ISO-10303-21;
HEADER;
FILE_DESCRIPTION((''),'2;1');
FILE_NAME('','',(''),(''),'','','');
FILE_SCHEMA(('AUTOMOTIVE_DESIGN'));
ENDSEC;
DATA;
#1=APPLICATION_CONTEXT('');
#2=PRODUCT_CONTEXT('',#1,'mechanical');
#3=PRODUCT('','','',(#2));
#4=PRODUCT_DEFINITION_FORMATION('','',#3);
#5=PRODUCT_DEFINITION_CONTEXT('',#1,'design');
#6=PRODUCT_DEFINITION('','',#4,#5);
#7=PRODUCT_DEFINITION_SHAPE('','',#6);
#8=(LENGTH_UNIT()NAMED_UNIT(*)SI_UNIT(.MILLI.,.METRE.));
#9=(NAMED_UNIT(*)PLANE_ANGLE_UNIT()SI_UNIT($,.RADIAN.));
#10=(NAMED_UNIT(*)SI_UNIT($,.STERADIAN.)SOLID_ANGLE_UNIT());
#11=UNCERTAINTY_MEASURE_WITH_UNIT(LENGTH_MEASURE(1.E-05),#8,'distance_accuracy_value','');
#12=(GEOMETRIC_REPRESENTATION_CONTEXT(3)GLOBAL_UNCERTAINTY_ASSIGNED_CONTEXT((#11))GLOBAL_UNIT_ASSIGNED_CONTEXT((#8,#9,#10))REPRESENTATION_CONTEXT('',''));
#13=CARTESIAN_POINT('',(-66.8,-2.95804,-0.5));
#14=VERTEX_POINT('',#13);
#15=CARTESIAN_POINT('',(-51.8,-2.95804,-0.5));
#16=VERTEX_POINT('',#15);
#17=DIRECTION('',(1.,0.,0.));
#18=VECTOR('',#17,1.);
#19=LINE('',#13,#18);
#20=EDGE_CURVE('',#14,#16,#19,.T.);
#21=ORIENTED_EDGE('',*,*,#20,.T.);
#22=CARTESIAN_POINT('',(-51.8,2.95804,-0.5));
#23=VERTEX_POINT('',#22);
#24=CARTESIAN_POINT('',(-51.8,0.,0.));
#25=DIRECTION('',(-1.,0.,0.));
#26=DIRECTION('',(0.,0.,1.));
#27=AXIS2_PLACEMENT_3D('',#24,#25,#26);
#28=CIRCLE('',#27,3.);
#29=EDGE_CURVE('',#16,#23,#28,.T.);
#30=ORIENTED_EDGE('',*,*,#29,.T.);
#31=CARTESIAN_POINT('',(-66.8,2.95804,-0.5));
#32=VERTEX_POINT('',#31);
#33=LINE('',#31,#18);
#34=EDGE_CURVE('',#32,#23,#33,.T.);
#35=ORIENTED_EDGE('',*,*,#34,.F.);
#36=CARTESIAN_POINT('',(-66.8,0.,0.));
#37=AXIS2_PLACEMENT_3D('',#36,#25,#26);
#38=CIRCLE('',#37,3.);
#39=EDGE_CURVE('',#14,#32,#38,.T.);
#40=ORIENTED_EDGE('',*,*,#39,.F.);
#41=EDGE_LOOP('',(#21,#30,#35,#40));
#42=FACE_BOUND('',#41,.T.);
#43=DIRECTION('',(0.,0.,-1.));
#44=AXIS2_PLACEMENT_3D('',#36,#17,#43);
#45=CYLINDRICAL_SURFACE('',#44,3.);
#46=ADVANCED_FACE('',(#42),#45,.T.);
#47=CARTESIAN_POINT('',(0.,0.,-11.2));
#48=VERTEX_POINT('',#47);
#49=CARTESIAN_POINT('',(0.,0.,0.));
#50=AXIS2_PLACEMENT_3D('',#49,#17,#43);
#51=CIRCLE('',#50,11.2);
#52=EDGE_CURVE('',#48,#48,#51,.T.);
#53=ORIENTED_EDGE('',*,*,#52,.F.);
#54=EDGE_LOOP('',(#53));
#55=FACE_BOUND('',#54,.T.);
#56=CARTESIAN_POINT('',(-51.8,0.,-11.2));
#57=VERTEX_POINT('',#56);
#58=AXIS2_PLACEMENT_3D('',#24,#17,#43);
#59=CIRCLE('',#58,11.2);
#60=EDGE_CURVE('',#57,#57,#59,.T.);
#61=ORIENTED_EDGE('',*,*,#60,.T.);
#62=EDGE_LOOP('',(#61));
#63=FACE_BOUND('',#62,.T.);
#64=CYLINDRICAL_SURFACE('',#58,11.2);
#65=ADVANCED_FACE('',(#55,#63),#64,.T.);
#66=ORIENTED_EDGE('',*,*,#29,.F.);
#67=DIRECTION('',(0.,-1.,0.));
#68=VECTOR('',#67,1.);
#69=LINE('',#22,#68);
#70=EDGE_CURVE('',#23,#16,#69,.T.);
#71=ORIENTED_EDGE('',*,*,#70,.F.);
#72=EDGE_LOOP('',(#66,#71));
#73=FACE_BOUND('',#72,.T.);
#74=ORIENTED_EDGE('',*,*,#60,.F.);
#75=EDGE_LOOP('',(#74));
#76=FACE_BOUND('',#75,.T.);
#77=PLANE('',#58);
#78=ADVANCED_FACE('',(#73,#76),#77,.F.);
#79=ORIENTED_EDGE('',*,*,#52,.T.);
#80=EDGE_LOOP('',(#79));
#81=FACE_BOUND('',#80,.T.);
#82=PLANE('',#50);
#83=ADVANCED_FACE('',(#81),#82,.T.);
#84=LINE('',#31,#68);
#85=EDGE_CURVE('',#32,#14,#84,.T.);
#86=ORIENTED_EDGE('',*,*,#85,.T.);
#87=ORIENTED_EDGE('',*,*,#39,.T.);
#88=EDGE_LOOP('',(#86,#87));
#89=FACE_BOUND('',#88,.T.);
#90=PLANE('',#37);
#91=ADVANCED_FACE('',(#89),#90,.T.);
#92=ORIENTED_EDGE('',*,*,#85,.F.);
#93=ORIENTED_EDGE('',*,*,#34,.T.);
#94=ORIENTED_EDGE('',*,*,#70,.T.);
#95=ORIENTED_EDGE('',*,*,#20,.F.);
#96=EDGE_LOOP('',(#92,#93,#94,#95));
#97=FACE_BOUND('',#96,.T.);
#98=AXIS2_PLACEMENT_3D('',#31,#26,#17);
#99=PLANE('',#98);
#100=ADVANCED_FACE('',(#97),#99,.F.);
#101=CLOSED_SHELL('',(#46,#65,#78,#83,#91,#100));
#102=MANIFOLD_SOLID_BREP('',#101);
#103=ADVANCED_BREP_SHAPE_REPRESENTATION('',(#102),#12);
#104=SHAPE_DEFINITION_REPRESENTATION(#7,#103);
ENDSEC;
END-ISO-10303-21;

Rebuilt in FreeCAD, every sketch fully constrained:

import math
import FreeCAD as App
import Part
import Sketcher
from FreeCAD import Vector

doc = App.newDocument("Part")
body = doc.addObject("PartDesign::Body", "Body")

sketch1 = body.newObject("Sketcher::SketchObject", "Sketch")
sketch1.AttachmentSupport = (doc.getObject("YZ_Plane"), [""])
sketch1.MapMode = "FlatFace"
sketch1.addGeometry(Part.Circle(Vector(0, 0, 0), Vector(0, 0, 1), 11), False)
sketch1.addConstraint([
    Sketcher.Constraint("Coincident", 0, 3, -1, 1),
    Sketcher.Constraint("Diameter", 0, 22.4),
])
pad1 = body.newObject("PartDesign::Pad", "Pad")
pad1.Profile = sketch1
pad1.Length = 51.8
pad1.Reversed = True

sketch2 = body.newObject("Sketcher::SketchObject", "Sketch001")
sketch2.AttachmentSupport = (doc.getObject("YZ_Plane"), [""])
sketch2.MapMode = "FlatFace"
sketch2.AttachmentOffset = App.Placement(Vector(0, 0, -51.8), App.Rotation())
sketch2.addGeometry([
    Part.LineSegment(Vector(3, -0.5, 0), Vector(-3, -0.5, 0)),
    Part.ArcOfCircle(Part.Circle(Vector(0, 0, 0), Vector(0, 0, 1), 3), math.radians(-10), math.radians(190)),
], False)
sketch2.addConstraint([
    Sketcher.Constraint("Coincident", 0, 1, 1, 1),
    Sketcher.Constraint("Coincident", 1, 2, 0, 2),
    Sketcher.Constraint("Horizontal", 0),
    Sketcher.Constraint("Coincident", 1, 3, -1, 1),
    Sketcher.Constraint("Radius", 1, 3.0),
    Sketcher.Constraint("DistanceY", 0, 1, -1, 1, 0.5),
])
pad2 = body.newObject("PartDesign::Pad", "Pad001")
pad2.Profile = sketch2
pad2.Length = 15
pad2.Reversed = True

doc.recompute()
